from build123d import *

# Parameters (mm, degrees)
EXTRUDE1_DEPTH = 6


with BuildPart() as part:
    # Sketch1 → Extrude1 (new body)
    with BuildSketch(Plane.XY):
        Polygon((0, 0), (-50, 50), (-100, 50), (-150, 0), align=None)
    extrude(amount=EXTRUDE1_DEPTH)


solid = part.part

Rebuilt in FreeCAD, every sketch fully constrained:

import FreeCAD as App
import Part
import Sketcher

V = App.Vector


def add_polygon(sketch, points):
    """Adds a closed chain of lines whose ends are joined by coincident constraints."""
    first, n = sketch.GeometryCount, len(points)
    for a, b in zip(points, points[1:] + points[:1]):
        sketch.addGeometry(Part.LineSegment(App.Vector(*a, 0), App.Vector(*b, 0)), False)
    for i in range(n):
        sketch.addConstraint(Sketcher.Constraint("Coincident", first + i, 2, first + (i + 1) % n, 1))

doc = App.newDocument("Part")
body = doc.addObject("PartDesign::Body", "Body")

# Sketch on XY plane
sketch1 = body.newObject("Sketcher::SketchObject", "Sketch")
sketch1.AttachmentSupport = (doc.getObject("XY_Plane"), [""])
sketch1.MapMode = "FlatFace"
add_polygon(sketch1, [(0, 0), (-50, 50), (-100, 50), (-150, 0)])  # lines 0-3
sketch1.addConstraint([
    Sketcher.Constraint("Horizontal", 1),
    Sketcher.Constraint("Horizontal", 3),
    Sketcher.Constraint("Coincident", 3, 2, -1, 1),
    Sketcher.Constraint("Perpendicular", 0, 2),
    Sketcher.Constraint("Equal", 0, 2),
    Sketcher.Constraint("DistanceX", 1, 2, 1, 1, 50.0),
    Sketcher.Constraint("DistanceX", 3, 1, 3, 2, 150.0),
])
pad1 = body.newObject("PartDesign::Pad", "Pad")
pad1.Profile = sketch1
pad1.Length = 6

doc.recompute()
